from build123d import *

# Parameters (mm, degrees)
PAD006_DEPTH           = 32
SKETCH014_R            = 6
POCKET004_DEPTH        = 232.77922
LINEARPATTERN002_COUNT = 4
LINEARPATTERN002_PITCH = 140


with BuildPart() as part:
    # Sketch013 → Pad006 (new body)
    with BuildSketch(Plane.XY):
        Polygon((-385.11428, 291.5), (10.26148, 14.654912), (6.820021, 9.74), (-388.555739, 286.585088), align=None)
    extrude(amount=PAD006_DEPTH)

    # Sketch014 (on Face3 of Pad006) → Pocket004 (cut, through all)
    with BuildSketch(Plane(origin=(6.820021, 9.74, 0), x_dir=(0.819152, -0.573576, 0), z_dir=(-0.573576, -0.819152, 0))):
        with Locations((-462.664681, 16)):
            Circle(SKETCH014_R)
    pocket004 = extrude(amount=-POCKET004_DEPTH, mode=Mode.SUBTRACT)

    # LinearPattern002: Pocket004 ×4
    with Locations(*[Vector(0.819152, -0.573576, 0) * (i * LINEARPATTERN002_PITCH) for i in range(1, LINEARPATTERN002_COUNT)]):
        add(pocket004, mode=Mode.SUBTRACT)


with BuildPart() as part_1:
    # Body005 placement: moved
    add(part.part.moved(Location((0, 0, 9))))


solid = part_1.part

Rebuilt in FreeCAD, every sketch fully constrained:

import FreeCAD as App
import Part
import Sketcher
Q = App.Units.Quantity


def add_polygon(sketch, points):
    """Adds a closed chain of lines whose ends are joined by coincident constraints."""
    first, n = sketch.GeometryCount, len(points)
    for a, b in zip(points, points[1:] + points[:1]):
        sketch.addGeometry(Part.LineSegment(App.Vector(*a, 0), App.Vector(*b, 0)), False)
    for i in range(n):
        sketch.addConstraint(Sketcher.Constraint("Coincident", first + i, 2, first + (i + 1) % n, 1))

doc = App.newDocument("Part")
body = doc.addObject("PartDesign::Body", "Body")

sketch1 = doc.addObject("Sketcher::SketchObject", "Sketch")
body.addObject(sketch1)
sketch1.AttachmentSupport = (doc.XY_Plane, [""])
sketch1.MapMode = "FlatFace"
add_polygon(sketch1, [(10, 15), (-385, 292), (-389, 287), (7, 10)])
sketch1.addConstraint([
    Sketcher.Constraint("Perpendicular", 0, 1),
    Sketcher.Constraint("Perpendicular", 1, 2),
    Sketcher.Constraint("Perpendicular", 2, 3),
    Sketcher.Constraint("Angle", 0, Q("145 deg")),
    Sketcher.Constraint("Distance", 1, 6.0),
    Sketcher.Constraint("DistanceY", -1, 1, 0, 2, 291.5),
    Sketcher.Constraint("DistanceY", -1, 1, 2, 2, 9.74),
    Sketcher.Constraint("DistanceX", 0, 2, -1, 1, 385.11428),
])
pad1 = doc.addObject("PartDesign::Pad", "Pad")
body.addObject(pad1)
pad1.Profile = sketch1
pad1.Length = 32

sketch2 = doc.addObject("Sketcher::SketchObject", "Sketch001")
body.addObject(sketch2)
sketch2.Placement = App.Placement(App.Vector(6.820021, 9.74, 0), App.Rotation(App.Vector(0.819152235, -0.573576164, 0), App.Vector(0, 0, 1), App.Vector(-0.573576164, -0.819152235, 0), "ZXY"))
sketch2.addGeometry(Part.Circle(App.Vector(-463, 16, 0), App.Vector(0, 0, 1), 6), False)
sketch2.addConstraint([
    Sketcher.Constraint("Diameter", 0, 12.0),
    Sketcher.Constraint("DistanceY", -1, 1, 0, 3, 16.0),
    Sketcher.Constraint("DistanceX", 0, 3, -1, 1, 462.664681),
])
pocket1 = doc.addObject("PartDesign::Pocket", "Pocket")
body.addObject(pocket1)
pocket1.Profile = sketch2
pocket1.Type = "ThroughAll"
doc.recompute()

datumline = doc.addObject("PartDesign::Line", "DatumLine")
body.addObject(datumline)
datumline.Placement = App.Placement(App.Vector(0, 0, 0), App.Rotation(App.Vector(0, 0, 1), App.Vector(0.819152235, -0.573576164, 0)))
linearpattern = doc.addObject("PartDesign::LinearPattern", "LinearPattern")
body.addObject(linearpattern)
linearpattern.Originals = [pocket1]
linearpattern.Direction = (datumline, [""])
linearpattern.Mode = "offset"
linearpattern.Offset = 139.99996
linearpattern.Occurrences = 4
body.Tip = linearpattern
body2 = doc.addObject("PartDesign::Body", "Body001")
doc.recompute()

body.Placement = App.Placement(App.Vector(0, 0, 9), App.Rotation(App.Vector(0, 0, 1), 0))
boolean = doc.addObject("PartDesign::Boolean", "Boolean")
body2.addObject(boolean)
boolean.Type = "Fuse"
boolean.addObjects([body])

doc.recompute()
